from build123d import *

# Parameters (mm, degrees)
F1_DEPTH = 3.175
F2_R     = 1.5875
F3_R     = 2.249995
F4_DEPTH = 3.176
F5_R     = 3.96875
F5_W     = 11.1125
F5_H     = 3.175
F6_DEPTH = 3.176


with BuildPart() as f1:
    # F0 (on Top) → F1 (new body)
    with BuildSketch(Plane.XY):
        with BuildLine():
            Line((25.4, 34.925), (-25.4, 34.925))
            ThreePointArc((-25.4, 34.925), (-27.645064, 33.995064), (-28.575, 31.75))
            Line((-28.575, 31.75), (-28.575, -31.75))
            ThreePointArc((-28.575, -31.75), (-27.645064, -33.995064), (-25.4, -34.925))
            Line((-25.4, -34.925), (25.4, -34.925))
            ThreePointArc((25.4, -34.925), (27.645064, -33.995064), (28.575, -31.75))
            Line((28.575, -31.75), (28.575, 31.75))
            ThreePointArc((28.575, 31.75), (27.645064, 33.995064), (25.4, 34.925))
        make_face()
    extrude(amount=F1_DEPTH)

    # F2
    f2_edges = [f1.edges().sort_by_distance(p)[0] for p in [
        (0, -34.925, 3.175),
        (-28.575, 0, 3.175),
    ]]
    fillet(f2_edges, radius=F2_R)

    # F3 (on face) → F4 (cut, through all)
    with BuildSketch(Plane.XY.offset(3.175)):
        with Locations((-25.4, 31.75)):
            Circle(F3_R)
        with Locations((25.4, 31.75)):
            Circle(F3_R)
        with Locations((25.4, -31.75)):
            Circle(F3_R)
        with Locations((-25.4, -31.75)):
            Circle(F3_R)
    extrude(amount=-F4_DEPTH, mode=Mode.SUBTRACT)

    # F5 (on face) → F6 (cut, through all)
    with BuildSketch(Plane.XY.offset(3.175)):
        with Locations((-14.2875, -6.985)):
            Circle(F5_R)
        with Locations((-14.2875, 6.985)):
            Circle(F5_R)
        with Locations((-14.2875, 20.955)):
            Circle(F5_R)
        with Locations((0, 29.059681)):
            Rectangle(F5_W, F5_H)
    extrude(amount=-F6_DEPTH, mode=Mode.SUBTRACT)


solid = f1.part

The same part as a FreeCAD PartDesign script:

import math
import FreeCAD as App
import Part
import Sketcher
Q = App.Units.Quantity


def edges_at(feature, points):
    """Names of the edges that pass closest to the given points."""
    edges = feature.Shape.Edges
    near = lambda p: min(range(len(edges)), key=lambda i: edges[i].distToShape(Part.Vertex(*p))[0])
    return sorted({f"Edge{near(p) + 1}" for p in points})

doc = App.newDocument("Part")
body = doc.addObject("PartDesign::Body", "Body")

sketch1 = body.newObject("Sketcher::SketchObject", "Sketch")
sketch1.AttachmentSupport = (doc.getObject("XY_Plane"), [""])
sketch1.MapMode = "FlatFace"
sketch1.addGeometry([
    Part.LineSegment(App.Vector(25.4, 34.9, 0), App.Vector(-25.4, 34.9, 0)),
    Part.ArcOfCircle(Part.Circle(App.Vector(-25.4, 31.7, 0), App.Vector(0, 0, 1), 3.2), math.radians(90), math.radians(180)),
    Part.LineSegment(App.Vector(-28.6, 31.8, 0), App.Vector(-28.6, -31.8, 0)),
    Part.ArcOfCircle(Part.Circle(App.Vector(-25.4, -31.7, 0), App.Vector(0, 0, 1), 3.2), math.radians(-180), math.radians(-90)),
    Part.LineSegment(App.Vector(-25.4, -34.9, 0), App.Vector(25.4, -34.9, 0)),
    Part.ArcOfCircle(Part.Circle(App.Vector(25.4, -31.7, 0), App.Vector(0, 0, 1), 3.2), math.radians(-90), math.radians(0)),
    Part.LineSegment(App.Vector(28.6, -31.8, 0), App.Vector(28.6, 31.8, 0)),
    Part.ArcOfCircle(Part.Circle(App.Vector(25.4, 31.7, 0), App.Vector(0, 0, 1), 3.2), math.radians(0), math.radians(90)),
], False)
sketch1.addConstraint([
    Sketcher.Constraint("Tangent", 0, 2, 1, 1),
    Sketcher.Constraint("Tangent", 1, 2, 2, 1),
    Sketcher.Constraint("Tangent", 2, 2, 3, 1),
    Sketcher.Constraint("Tangent", 3, 2, 4, 1),
    Sketcher.Constraint("Tangent", 4, 2, 5, 1),
    Sketcher.Constraint("Tangent", 5, 2, 6, 1),
    Sketcher.Constraint("Tangent", 6, 2, 7, 1),
    Sketcher.Constraint("Tangent", 7, 2, 0, 1),
    Sketcher.Constraint("Horizontal", 0),
    Sketcher.Constraint("Vertical", 2),
    Sketcher.Constraint("Horizontal", 4),
    Sketcher.Constraint("Vertical", 6),
    Sketcher.Constraint("Equal", 1, 3),
    Sketcher.Constraint("Equal", 3, 5),
    Sketcher.Constraint("Equal", 5, 7),
    Sketcher.Constraint("Symmetric", 1, 3, 5, 3, -1, 1),
    Sketcher.Constraint("DistanceX", 0, 2, 0, 1, Q("2 in")),
    Sketcher.Constraint("DistanceY", 2, 2, 2, 1, Q("2.5 in")),
    Sketcher.Constraint("Radius", 1, Q("0.125 in")),
])
pad1 = body.newObject("PartDesign::Pad", "Pad")
pad1.Profile = sketch1
pad1.Length = Q("0.125 in")
doc.recompute()

fillet = body.newObject("PartDesign::Fillet", "Fillet")
fillet.Base = (pad1, edges_at(pad1, [(0, -34.925, 3.175), (-28.575, 0, 3.175)]))
fillet.Radius = Q("0.0625 in")

sketch2 = body.newObject("Sketcher::SketchObject", "Sketch001")
sketch2.AttachmentSupport = (doc.getObject("XY_Plane"), [""])
sketch2.MapMode = "FlatFace"
sketch2.AttachmentOffset = App.Placement(App.Vector(0, 0, 0.125 * 25.4), App.Rotation())
sketch2.addGeometry([
    Part.Circle(App.Vector(-25.4, 31.8, 0), App.Vector(0, 0, 1), 2.2),
    Part.Circle(App.Vector(25.4, 31.8, 0), App.Vector(0, 0, 1), 2.2),
    Part.Circle(App.Vector(25.4, -31.8, 0), App.Vector(0, 0, 1), 2.2),
    Part.Circle(App.Vector(-25.4, -31.8, 0), App.Vector(0, 0, 1), 2.2),
], False)
sketch2.addConstraint([
    Sketcher.Constraint("Equal", 0, 1),
    Sketcher.Constraint("Equal", 1, 2),
    Sketcher.Constraint("Equal", 2, 3),
    Sketcher.Constraint("Symmetric", 0, 3, 2, 3, -1, 1),
    Sketcher.Constraint("Symmetric", 1, 3, 3, 3, -1, 1),
    Sketcher.Constraint("Symmetric", 0, 3, 1, 3, -2),
    Sketcher.Constraint("DistanceX", 0, 3, -1, 1, Q("1 in")),
    Sketcher.Constraint("DistanceY", 2, 3, 1, 3, Q("2.5 in")),
    Sketcher.Constraint("Diameter", 0, Q("4.49999 mm")),
])
pocket1 = body.newObject("PartDesign::Pocket", "Pocket")
pocket1.Profile = sketch2
pocket1.Type = "ThroughAll"

sketch3 = body.newObject("Sketcher::SketchObject", "Sketch002")
sketch3.AttachmentSupport = (doc.getObject("XY_Plane"), [""])
sketch3.MapMode = "FlatFace"
sketch3.AttachmentOffset = App.Placement(App.Vector(0, 0, 0.125 * 25.4), App.Rotation())
sketch3.addGeometry([
    Part.Circle(App.Vector(-14.3, -7, 0), App.Vector(0, 0, 1), 4),
    Part.Circle(App.Vector(-14.3, 7, 0), App.Vector(0, 0, 1), 4),
    Part.Circle(App.Vector(-14.3, 21, 0), App.Vector(0, 0, 1), 4),
    Part.LineSegment(App.Vector(-5.6, 30.6, 0), App.Vector(-5.6, 27.5, 0)),
    Part.LineSegment(App.Vector(-5.6, 27.5, 0), App.Vector(5.6, 27.5, 0)),
    Part.LineSegment(App.Vector(5.6, 27.5, 0), App.Vector(5.6, 30.6, 0)),
    Part.LineSegment(App.Vector(5.6, 30.6, 0), App.Vector(-5.6, 30.6, 0)),
], False)
sketch3.addConstraint([
    Sketcher.Constraint("Coincident", 3, 2, 4, 1),
    Sketcher.Constraint("Coincident", 4, 2, 5, 1),
    Sketcher.Constraint("Coincident", 5, 2, 6, 1),
    Sketcher.Constraint("Coincident", 6, 2, 3, 1),
    Sketcher.Constraint("Vertical", 3),
    Sketcher.Constraint("Horizontal", 4),
    Sketcher.Constraint("Vertical", 5),
    Sketcher.Constraint("Horizontal", 6),
    Sketcher.Constraint("Equal", 0, 1),
    Sketcher.Constraint("Equal", 1, 2),
    Sketcher.Constraint("Symmetric", 0, 3, 1, 3, -1),
    Sketcher.Constraint("Vertical", 1, 3, 2, 3),
    Sketcher.Constraint("Diameter", 0, Q("0.3125 in")),
    Sketcher.Constraint("DistanceY", 0, 3, 2, 3, Q("1.1 in")),
    Sketcher.Constraint("DistanceX", 4, 1, 4, 2, Q("0.4375 in")),
    Sketcher.Constraint("DistanceY", 3, 2, 3, 1, Q("0.125 in")),
    Sketcher.Constraint("DistanceY", 0, 3, 1, 3, Q("0.55 in")),
    Sketcher.Constraint("DistanceX", 0, 3, -1, 1, Q("0.5625 in")),
    Sketcher.Constraint("DistanceX", 3, 2, -1, 1, Q("0.21875 in")),
    Sketcher.Constraint("DistanceY", -1, 1, 3, 2, Q("27.472181 mm")),
])
pocket2 = body.newObject("PartDesign::Pocket", "Pocket001")
pocket2.Profile = sketch3
pocket2.Type = "ThroughAll"

doc.recompute()
